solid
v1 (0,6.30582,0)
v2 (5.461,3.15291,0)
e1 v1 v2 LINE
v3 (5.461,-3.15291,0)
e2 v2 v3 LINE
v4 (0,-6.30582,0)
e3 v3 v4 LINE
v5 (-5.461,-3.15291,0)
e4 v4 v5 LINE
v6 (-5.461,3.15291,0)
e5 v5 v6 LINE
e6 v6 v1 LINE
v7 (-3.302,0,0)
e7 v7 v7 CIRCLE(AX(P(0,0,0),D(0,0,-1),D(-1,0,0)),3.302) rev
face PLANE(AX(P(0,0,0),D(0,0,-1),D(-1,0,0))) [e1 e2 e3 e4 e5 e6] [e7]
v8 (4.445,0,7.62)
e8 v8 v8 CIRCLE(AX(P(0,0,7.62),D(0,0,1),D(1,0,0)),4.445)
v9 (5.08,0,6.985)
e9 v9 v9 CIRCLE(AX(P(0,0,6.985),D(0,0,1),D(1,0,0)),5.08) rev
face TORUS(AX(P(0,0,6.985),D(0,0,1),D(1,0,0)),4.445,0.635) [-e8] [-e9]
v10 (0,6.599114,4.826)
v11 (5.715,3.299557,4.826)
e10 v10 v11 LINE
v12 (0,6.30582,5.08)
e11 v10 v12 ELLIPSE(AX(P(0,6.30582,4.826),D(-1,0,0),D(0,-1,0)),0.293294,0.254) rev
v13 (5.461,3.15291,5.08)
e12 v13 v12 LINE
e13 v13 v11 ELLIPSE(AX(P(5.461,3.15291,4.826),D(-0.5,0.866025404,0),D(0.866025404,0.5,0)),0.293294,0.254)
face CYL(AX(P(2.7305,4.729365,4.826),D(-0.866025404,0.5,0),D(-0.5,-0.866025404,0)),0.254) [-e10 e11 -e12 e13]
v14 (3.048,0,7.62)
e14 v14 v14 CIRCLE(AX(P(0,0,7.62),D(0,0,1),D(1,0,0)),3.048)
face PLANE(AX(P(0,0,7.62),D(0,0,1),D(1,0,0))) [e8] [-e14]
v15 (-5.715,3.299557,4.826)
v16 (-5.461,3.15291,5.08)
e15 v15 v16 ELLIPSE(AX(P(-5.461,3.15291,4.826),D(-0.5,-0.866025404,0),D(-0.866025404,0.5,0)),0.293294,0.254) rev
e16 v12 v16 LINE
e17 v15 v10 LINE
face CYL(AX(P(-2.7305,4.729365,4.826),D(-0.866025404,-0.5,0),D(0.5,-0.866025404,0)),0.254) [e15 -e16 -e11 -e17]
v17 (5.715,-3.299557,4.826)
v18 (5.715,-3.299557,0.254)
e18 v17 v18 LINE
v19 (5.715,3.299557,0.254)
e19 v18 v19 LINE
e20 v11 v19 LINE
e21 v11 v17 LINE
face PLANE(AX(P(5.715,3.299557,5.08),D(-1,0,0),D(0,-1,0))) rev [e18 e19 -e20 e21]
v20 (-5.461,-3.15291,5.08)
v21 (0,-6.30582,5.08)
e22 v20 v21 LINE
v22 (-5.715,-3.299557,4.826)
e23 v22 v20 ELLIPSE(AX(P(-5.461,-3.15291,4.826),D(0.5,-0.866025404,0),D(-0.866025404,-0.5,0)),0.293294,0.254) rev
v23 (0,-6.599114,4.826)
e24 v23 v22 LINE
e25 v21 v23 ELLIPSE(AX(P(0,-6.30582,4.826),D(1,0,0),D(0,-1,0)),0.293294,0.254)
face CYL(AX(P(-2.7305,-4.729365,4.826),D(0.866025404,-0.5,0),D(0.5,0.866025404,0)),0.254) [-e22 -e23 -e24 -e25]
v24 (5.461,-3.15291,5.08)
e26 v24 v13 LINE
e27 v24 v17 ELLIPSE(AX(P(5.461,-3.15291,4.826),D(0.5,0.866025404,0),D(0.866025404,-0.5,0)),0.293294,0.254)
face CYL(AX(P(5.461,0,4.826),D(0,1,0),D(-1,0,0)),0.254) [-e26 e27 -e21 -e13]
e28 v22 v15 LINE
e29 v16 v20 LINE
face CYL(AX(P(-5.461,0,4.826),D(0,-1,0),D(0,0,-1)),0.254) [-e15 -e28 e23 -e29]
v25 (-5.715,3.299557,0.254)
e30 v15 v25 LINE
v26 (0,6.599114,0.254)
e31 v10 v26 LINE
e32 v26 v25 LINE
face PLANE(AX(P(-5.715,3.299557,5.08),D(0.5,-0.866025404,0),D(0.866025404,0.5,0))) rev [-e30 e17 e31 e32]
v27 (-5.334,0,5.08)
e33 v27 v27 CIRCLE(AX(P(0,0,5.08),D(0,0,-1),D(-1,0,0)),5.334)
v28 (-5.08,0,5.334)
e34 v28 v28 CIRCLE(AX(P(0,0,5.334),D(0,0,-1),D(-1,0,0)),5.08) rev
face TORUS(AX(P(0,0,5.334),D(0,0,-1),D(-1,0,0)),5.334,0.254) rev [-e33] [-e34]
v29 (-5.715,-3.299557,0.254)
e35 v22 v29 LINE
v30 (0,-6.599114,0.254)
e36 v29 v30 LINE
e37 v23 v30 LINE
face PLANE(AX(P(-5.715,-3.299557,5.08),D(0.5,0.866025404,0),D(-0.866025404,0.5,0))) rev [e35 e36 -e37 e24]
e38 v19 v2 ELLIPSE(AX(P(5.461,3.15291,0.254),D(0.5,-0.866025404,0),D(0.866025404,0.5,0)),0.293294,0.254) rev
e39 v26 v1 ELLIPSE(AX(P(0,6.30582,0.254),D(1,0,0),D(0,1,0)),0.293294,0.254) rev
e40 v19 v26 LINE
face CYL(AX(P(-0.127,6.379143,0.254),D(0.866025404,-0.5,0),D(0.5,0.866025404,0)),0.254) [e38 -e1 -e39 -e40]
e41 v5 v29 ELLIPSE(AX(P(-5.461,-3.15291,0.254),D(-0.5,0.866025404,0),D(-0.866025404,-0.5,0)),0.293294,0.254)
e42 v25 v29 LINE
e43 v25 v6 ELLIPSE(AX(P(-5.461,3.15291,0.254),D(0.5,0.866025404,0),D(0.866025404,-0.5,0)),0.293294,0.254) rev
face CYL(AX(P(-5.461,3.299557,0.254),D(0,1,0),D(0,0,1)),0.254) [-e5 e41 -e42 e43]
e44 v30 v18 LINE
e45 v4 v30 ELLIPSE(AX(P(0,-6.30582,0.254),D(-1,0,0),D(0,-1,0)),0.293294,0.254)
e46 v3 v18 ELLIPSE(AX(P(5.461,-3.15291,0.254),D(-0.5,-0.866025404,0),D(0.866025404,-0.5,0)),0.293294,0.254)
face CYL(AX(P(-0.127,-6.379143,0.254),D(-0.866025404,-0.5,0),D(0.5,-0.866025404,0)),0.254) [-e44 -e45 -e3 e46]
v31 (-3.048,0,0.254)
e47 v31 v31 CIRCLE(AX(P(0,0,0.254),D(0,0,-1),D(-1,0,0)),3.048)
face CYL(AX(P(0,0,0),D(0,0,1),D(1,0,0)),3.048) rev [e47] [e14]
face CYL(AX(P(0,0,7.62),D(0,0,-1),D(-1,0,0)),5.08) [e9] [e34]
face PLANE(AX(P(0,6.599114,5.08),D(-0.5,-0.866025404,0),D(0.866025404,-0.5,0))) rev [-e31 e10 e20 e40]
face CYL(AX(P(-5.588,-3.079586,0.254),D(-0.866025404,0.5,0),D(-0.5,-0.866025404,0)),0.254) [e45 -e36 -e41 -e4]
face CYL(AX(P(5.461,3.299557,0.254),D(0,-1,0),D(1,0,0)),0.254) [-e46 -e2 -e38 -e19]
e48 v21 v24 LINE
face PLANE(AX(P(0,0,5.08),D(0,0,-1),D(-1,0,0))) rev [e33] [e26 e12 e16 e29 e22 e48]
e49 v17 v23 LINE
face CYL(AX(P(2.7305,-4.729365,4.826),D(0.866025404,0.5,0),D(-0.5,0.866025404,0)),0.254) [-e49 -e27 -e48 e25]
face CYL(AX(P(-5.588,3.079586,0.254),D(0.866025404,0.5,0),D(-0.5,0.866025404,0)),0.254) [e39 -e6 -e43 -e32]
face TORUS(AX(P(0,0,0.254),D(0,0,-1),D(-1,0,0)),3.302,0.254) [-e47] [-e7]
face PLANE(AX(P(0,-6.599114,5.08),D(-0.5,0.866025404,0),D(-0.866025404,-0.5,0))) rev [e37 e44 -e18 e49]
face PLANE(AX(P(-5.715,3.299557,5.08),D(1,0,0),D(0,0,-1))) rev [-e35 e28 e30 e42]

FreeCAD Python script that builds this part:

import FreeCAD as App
import Part
import Sketcher
from FreeCAD import Vector
Q = App.Units.Quantity


def edges_at(feature, points):
    """Names of the edges that pass closest to the given points."""
    edges = feature.Shape.Edges
    near = lambda p: min(range(len(edges)), key=lambda i: edges[i].distToShape(Part.Vertex(*p))[0])
    return sorted({f"Edge{near(p) + 1}" for p in points})


def add_polygon(sketch, points):
    """Adds a closed chain of lines whose ends are joined by coincident constraints."""
    first, n = sketch.GeometryCount, len(points)
    for a, b in zip(points, points[1:] + points[:1]):
        sketch.addGeometry(Part.LineSegment(App.Vector(*a, 0), App.Vector(*b, 0)), False)
    for i in range(n):
        sketch.addConstraint(Sketcher.Constraint("Coincident", first + i, 2, first + (i + 1) % n, 1))

doc = App.newDocument("Part")
body = doc.addObject("PartDesign::Body", "Body")

# Sketch on XY plane
sketch1 = body.newObject("Sketcher::SketchObject", "Sketch")
sketch1.AttachmentSupport = (doc.getObject("XY_Plane"), [""])
sketch1.MapMode = "FlatFace"
add_polygon(sketch1, [(-6, 3), (-6, -3), (0, -7), (6, -3), (6, 3), (0, 7)])  # lines 0-5
sketch1.addConstraint([
    Sketcher.Constraint("Vertical", 0),
    Sketcher.Constraint("Vertical", 3),
    Sketcher.Constraint("Symmetric", 0, 2, 3, 2, -1, 1),
    Sketcher.Constraint("Symmetric", 1, 2, 4, 2, -1, 1),
    Sketcher.Constraint("PointOnObject", 1, 2, -2),
    Sketcher.Constraint("Parallel", 2, 5),
    Sketcher.Constraint("Horizontal", 0, 2, 2, 2),
    Sketcher.Constraint("Angle", 1, Q("-30 deg")),
    Sketcher.Constraint("DistanceX", 0, 2, 2, 2, Q("0.45 in")),
    Sketcher.Constraint("DistanceY", 0, 2, 0, 1, 6.599114),
])
pad1 = body.newObject("PartDesign::Pad", "Pad")
pad1.Profile = sketch1
pad1.Length = Q("0.2 in")

# Sketch on XY plane
sketch2 = body.newObject("Sketcher::SketchObject", "Sketch001")
sketch2.AttachmentSupport = (doc.getObject("XY_Plane"), [""])
sketch2.MapMode = "FlatFace"
sketch2.AttachmentOffset = App.Placement(Vector(0, 0, 0.2 * 25.4), App.Rotation())
sketch2.addGeometry(Part.Circle(Vector(0, 0, 0), Vector(0, 0, 1), 5), False)
sketch2.addConstraint([
    Sketcher.Constraint("Coincident", 0, 3, -1, 1),
    Sketcher.Constraint("Diameter", 0, Q("0.4 in")),
])
pad2 = body.newObject("PartDesign::Pad", "Pad001")
pad2.Profile = sketch2
pad2.Length = Q("0.1 in")
doc.recompute()

fillet = body.newObject("PartDesign::Fillet", "Fillet")
fillet.Base = (pad2, edges_at(pad2, [(-5.08, 0, 7.62)]))
fillet.Radius = Q("0.025 in")

# Sketch on XY plane
sketch3 = body.newObject("Sketcher::SketchObject", "Sketch002")
sketch3.AttachmentSupport = (doc.getObject("XY_Plane"), [""])
sketch3.MapMode = "FlatFace"
sketch3.AttachmentOffset = App.Placement(Vector(0, 0, 0.3 * 25.4), App.Rotation())
sketch3.addGeometry(Part.Circle(Vector(0, 0, 0), Vector(0, 0, 1), 3), False)
sketch3.addConstraint([
    Sketcher.Constraint("Coincident", 0, 3, -1, 1),
    Sketcher.Constraint("Diameter", 0, Q("0.24 in")),
])
pocket1 = body.newObject("PartDesign::Pocket", "Pocket")
pocket1.Profile = sketch3
pocket1.Type = "ThroughAll"
doc.recompute()

fillet2 = body.newObject("PartDesign::Fillet", "Fillet001")
fillet2.Base = (pocket1, edges_at(pocket1, [
    (-3.048, 0, 0),
    (2.857, 4.949, 0),
    (5.715, 0, 0),
    (2.857, -4.949, 0),
    (-2.857, -4.949, 0),
    (-5.715, 0, 0),
    (-2.857, 4.949, 0),
]))
fillet2.Radius = Q("0.01 in")
doc.recompute()

fillet3 = body.newObject("PartDesign::Fillet", "Fillet002")
fillet3.Base = (fillet2, edges_at(fillet2, [
    (-2.857, -4.949, 5.08),
    (2.857, -4.949, 5.08),
    (5.715, 0, 5.08),
    (-5.08, 0, 5.08),
    (2.857, 4.949, 5.08),
    (-2.857, 4.949, 5.08),
    (-5.715, 0, 5.08),
]))
fillet3.Radius = Q("0.01 in")

doc.recompute()
